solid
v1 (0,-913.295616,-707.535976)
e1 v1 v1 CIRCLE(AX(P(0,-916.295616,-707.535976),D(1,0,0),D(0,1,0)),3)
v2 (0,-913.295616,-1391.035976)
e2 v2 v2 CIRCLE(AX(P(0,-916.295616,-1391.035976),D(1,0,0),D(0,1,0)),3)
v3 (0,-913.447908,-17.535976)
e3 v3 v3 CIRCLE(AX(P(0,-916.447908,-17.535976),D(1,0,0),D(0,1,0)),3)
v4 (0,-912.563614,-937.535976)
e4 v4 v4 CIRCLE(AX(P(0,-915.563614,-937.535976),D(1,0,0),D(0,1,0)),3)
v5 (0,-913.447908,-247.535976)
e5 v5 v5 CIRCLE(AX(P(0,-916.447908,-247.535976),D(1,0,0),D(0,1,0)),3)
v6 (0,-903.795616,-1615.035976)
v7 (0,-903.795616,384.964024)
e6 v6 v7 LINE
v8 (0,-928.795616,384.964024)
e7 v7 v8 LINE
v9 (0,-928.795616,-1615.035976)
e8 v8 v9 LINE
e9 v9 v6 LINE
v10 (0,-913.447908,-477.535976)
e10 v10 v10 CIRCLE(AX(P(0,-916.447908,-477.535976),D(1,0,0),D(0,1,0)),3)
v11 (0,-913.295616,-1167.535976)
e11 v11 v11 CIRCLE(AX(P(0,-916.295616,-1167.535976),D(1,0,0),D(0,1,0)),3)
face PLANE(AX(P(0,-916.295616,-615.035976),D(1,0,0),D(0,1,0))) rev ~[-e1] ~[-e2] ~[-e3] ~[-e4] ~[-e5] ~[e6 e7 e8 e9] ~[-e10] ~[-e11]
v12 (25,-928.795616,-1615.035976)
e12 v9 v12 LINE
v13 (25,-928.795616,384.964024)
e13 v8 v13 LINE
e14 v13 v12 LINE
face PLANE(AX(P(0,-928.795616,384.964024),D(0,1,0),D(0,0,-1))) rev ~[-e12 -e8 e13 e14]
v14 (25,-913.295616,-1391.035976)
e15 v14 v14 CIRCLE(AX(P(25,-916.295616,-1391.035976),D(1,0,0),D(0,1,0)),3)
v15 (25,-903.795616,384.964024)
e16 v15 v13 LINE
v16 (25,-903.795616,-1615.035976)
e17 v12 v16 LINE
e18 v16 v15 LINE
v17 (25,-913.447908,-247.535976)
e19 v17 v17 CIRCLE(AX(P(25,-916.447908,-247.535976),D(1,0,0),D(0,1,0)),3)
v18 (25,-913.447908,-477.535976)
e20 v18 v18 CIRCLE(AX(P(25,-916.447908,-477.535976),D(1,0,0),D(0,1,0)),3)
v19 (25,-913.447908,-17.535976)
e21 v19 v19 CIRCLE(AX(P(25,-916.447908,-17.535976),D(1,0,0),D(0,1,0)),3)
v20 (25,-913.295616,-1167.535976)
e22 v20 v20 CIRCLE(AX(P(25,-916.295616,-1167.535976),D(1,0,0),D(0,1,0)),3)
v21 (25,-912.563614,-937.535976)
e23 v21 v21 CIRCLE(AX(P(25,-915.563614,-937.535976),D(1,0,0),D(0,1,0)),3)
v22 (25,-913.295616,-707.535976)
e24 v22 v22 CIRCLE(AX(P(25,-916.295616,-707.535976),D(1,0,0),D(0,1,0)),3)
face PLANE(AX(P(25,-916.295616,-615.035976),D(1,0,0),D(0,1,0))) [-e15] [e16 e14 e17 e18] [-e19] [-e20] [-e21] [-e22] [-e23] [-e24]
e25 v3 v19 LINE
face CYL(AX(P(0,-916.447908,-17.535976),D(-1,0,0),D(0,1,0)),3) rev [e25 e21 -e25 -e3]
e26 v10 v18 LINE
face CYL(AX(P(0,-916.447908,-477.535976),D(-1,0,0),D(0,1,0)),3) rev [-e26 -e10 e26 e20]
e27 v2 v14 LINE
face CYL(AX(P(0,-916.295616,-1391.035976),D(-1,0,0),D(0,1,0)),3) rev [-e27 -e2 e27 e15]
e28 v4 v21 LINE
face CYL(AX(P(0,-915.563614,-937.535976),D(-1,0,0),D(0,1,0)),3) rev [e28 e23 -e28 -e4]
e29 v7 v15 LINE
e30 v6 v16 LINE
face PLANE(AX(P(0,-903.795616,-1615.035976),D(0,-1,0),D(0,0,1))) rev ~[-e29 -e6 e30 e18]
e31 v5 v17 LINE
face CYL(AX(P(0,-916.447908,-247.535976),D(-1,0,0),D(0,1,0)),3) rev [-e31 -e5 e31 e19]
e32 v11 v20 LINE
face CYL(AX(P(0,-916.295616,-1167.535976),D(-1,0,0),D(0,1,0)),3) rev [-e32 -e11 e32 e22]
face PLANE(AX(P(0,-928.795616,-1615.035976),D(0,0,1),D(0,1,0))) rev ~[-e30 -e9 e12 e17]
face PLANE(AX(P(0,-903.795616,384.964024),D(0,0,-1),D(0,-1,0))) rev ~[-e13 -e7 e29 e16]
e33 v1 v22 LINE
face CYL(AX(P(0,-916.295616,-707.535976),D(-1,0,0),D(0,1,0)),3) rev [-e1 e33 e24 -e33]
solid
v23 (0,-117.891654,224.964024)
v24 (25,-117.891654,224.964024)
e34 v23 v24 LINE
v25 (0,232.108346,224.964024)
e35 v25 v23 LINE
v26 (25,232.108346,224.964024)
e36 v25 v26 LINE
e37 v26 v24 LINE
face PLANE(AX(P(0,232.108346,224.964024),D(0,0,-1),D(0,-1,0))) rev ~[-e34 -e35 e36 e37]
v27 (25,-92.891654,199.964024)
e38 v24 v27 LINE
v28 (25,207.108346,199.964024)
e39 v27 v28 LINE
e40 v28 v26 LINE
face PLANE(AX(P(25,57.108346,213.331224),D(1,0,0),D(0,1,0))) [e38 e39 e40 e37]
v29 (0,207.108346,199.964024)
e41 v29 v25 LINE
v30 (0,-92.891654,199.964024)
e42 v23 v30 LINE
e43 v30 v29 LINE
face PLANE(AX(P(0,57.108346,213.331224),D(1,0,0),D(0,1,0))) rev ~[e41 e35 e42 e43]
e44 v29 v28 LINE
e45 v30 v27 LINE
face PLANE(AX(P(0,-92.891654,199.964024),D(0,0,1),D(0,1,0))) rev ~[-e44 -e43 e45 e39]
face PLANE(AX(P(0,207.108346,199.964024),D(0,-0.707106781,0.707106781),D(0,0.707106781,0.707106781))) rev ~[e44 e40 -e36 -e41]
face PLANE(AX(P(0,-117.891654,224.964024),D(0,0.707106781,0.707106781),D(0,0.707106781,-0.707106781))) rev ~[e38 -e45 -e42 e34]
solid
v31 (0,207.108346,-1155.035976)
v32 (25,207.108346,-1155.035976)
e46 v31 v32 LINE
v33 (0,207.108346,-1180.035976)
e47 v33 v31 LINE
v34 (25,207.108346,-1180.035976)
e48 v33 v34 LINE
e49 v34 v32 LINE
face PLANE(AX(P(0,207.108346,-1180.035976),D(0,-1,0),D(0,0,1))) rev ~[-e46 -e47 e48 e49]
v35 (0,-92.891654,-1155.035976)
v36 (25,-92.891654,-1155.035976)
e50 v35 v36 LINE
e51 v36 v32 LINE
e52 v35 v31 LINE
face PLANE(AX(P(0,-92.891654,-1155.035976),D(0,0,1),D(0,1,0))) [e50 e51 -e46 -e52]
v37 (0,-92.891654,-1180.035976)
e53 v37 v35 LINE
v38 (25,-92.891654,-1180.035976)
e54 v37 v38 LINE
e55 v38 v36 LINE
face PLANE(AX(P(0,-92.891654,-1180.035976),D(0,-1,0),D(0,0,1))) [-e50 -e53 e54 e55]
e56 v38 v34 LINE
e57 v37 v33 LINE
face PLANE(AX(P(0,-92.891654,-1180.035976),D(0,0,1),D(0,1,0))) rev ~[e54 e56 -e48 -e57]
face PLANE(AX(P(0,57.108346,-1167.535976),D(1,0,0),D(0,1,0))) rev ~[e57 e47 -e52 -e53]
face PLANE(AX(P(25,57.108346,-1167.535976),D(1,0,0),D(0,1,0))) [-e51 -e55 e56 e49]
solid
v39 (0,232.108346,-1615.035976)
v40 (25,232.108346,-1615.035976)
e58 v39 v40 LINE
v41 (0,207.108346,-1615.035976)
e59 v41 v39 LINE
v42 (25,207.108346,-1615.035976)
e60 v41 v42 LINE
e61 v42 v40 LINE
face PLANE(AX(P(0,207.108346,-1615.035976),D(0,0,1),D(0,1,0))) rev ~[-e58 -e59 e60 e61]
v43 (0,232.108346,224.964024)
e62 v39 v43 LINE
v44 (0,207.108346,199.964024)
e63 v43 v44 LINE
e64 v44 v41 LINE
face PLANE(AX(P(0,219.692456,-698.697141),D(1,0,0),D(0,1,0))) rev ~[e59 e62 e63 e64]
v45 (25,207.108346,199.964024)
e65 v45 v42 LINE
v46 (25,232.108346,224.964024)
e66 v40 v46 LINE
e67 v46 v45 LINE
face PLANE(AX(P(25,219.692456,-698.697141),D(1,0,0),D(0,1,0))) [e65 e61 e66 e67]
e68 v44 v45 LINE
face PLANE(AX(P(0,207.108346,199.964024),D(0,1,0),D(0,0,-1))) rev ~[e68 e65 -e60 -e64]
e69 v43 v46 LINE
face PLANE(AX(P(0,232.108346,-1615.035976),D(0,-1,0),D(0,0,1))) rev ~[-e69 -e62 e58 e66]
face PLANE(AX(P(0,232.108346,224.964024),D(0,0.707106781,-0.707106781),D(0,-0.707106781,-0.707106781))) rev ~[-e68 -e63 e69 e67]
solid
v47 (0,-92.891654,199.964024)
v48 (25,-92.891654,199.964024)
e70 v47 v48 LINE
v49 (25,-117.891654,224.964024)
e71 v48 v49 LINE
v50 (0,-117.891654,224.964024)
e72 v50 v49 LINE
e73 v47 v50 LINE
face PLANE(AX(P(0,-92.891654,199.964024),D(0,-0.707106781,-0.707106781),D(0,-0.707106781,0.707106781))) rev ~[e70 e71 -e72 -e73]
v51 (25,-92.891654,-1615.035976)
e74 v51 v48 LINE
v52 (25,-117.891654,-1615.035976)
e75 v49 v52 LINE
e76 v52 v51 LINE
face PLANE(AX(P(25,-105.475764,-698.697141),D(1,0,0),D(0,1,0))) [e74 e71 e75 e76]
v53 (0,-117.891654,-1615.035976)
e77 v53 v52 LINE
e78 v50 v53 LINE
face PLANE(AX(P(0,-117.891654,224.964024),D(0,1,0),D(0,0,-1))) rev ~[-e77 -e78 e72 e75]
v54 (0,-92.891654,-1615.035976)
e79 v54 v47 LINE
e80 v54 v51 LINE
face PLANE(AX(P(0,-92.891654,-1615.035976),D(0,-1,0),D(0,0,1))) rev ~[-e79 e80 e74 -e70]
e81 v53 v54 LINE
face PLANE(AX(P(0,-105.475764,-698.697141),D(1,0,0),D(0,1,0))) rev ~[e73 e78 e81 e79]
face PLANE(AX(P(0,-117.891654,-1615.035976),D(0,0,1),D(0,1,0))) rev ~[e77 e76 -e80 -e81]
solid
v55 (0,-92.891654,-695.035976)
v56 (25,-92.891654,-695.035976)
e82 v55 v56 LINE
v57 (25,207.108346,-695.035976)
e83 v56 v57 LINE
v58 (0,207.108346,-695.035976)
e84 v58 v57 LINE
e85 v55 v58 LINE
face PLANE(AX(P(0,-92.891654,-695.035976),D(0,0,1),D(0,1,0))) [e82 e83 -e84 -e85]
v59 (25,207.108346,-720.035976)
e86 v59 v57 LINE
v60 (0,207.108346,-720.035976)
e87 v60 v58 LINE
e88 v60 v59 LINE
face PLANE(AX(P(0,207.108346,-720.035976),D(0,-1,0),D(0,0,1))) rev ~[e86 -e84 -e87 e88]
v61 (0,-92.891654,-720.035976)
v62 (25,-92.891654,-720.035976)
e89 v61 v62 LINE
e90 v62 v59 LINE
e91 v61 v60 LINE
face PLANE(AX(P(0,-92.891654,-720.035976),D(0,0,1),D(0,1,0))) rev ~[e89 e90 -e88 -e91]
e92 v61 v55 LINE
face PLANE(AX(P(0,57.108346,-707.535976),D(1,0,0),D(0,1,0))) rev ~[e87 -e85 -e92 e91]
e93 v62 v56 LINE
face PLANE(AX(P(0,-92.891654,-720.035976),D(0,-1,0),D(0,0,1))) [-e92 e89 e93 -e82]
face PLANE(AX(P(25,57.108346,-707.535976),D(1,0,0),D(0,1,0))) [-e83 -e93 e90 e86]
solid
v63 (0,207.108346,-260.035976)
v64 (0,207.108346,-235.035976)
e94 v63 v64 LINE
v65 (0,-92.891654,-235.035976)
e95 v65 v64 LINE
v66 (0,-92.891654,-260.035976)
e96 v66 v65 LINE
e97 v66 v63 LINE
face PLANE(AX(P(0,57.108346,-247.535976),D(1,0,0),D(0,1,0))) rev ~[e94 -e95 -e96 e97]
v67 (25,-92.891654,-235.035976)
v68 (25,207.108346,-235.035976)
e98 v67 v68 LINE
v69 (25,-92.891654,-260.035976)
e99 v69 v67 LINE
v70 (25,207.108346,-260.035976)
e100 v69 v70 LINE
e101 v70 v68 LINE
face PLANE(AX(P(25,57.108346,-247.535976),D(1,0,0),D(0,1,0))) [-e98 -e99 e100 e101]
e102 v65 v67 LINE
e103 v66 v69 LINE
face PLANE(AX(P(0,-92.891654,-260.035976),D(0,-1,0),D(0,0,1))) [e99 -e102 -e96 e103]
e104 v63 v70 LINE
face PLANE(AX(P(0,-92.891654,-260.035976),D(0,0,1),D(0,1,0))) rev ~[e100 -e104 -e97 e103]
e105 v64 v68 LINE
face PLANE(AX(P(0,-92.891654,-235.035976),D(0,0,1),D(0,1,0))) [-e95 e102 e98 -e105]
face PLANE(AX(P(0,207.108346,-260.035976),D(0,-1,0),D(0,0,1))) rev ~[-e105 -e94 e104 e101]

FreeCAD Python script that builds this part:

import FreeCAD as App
import Part
import Sketcher

V = App.Vector


def add_polygon(sketch, points):
    """Adds a closed chain of lines whose ends are joined by coincident constraints."""
    first, n = sketch.GeometryCount, len(points)
    for a, b in zip(points, points[1:] + points[:1]):
        sketch.addGeometry(Part.LineSegment(App.Vector(*a, 0), App.Vector(*b, 0)), False)
    for i in range(n):
        sketch.addConstraint(Sketcher.Constraint("Coincident", first + i, 2, first + (i + 1) % n, 1))

doc = App.newDocument("Part")
body = doc.addObject("PartDesign::Body", "Body")
body.AllowCompound = True

sketch1 = body.newObject("Sketcher::SketchObject", "Sketch")
sketch1.AttachmentSupport = (doc.getObject("YZ_Plane"), [""])
sketch1.MapMode = "FlatFace"
add_polygon(sketch1, [(-117.9, 225), (-117.9, -1615), (-92.9, -1615), (-92.9, 200)])
add_polygon(sketch1, [(232.1, -1615), (232.1, 225), (207.1, 200), (207.1, -1615)])
add_polygon(sketch1, [(-903.8, -1615), (-903.8, 385), (-928.8, 385), (-928.8, -1615)])
sketch1.addGeometry(Part.Circle(V(-916.3, -1391, 0), V(0, 0, 1), 3), False)
sketch1.addGeometry(Part.Circle(V(-916.3, -1167.5, 0), V(0, 0, 1), 3), False)
sketch1.addGeometry(Part.Circle(V(-916.3, -707.5, 0), V(0, 0, 1), 3), False)
sketch1.addGeometry(Part.Circle(V(-915.6, -937.5, 0), V(0, 0, 1), 3), False)
sketch1.addGeometry(Part.Circle(V(-916.4, -477.5, 0), V(0, 0, 1), 3), False)
sketch1.addGeometry(Part.Circle(V(-916.4, -247.5, 0), V(0, 0, 1), 3), False)
sketch1.addGeometry(Part.Circle(V(-916.4, -17.5, 0), V(0, 0, 1), 3), False)
sketch1.addConstraint([
    Sketcher.Constraint("Vertical", 0),
    Sketcher.Constraint("Horizontal", 1),
    Sketcher.Constraint("Vertical", 2),
    Sketcher.Constraint("Vertical", 4),
    Sketcher.Constraint("Vertical", 6),
    Sketcher.Constraint("Horizontal", 7),
    Sketcher.Constraint("Vertical", 8),
    Sketcher.Constraint("Horizontal", 9),
    Sketcher.Constraint("Vertical", 10),
    Sketcher.Constraint("Horizontal", 11),
    Sketcher.Constraint("Equal", 12, 13),
    Sketcher.Constraint("Equal", 13, 14),
    Sketcher.Constraint("Equal", 14, 15),
    Sketcher.Constraint("Equal", 15, 16),
    Sketcher.Constraint("Equal", 16, 17),
    Sketcher.Constraint("Equal", 17, 18),
    Sketcher.Constraint("Perpendicular", 3, 5),
    Sketcher.Constraint("Horizontal", 3, 2, 4, 2),
    Sketcher.Constraint("Horizontal", 2, 2, 5, 2),
    Sketcher.Constraint("Horizontal", 1, 2, 6, 2),
    Sketcher.Constraint("Horizontal", 7, 2, 10, 2),
    Sketcher.Constraint("Vertical", 12, 3, 13, 3),
    Sketcher.Constraint("Vertical", 13, 3, 14, 3),
    Sketcher.Constraint("Vertical", 16, 3, 17, 3),
    Sketcher.Constraint("Vertical", 17, 3, 18, 3),
    Sketcher.Constraint("Equal", 1, 7),
    Sketcher.Constraint("Equal", 7, 9),
    Sketcher.Constraint("Diameter", 12, 6.0),
    Sketcher.Constraint("DistanceX", 1, 1, 1, 2, 25.0),
    Sketcher.Constraint("DistanceY", 0, 2, 0, 1, 1840.0),
    Sketcher.Constraint("DistanceY", 8, 1, 8, 2, 2000.0),
    Sketcher.Constraint("DistanceY", 13, 3, 14, 3, 460.0),
    Sketcher.Constraint("DistanceY", 13, 3, 15, 3, 230.0),
    Sketcher.Constraint("DistanceY", 14, 3, 16, 3, 230.0),
    Sketcher.Constraint("DistanceY", 16, 3, 17, 3, 230.0),
    Sketcher.Constraint("DistanceY", 17, 3, 18, 3, 230.0),
    Sketcher.Constraint("DistanceY", 0, 2, 12, 3, 224.0),
    Sketcher.Constraint("DistanceX", 2, 2, 4, 2, 325.0),
    Sketcher.Constraint("DistanceY", 12, 3, 13, 3, 223.5),
    Sketcher.Constraint("DistanceX", 10, 2, 12, 3, 12.5),
    Sketcher.Constraint("DistanceX", 13, 3, 15, 3, 0.732002),
    Sketcher.Constraint("DistanceX", 16, 3, -1, 1, 916.447908),
    Sketcher.Constraint("DistanceX", 16, 3, 14, 3, 0.152292),
    Sketcher.Constraint("DistanceX", 12, 3, 0, 2, 798.403962),
    Sketcher.Constraint("DistanceY", 12, 3, -1, 1, 1391.035976),
])
pad1 = body.newObject("PartDesign::Pad", "Pad")
pad1.Profile = sketch1
pad1.Length = 25
body2 = doc.addObject("PartDesign::Body", "Body001")
body2.AllowCompound = True

sketch2 = body2.newObject("Sketcher::SketchObject", "Sketch001")
sketch2.AttachmentSupport = (doc.getObject("YZ_Plane001"), [""])
sketch2.MapMode = "FlatFace"
add_polygon(sketch2, [(232, 225), (-118, 225), (-93, 200), (207, 200)])
add_polygon(sketch2, [(-93, -235), (-93, -260), (207, -260), (207, -235)])
add_polygon(sketch2, [(-93, -695), (-93, -720), (207, -720), (207, -695)])
add_polygon(sketch2, [(-93, -1155), (-93, -1180), (207, -1180), (207, -1155)])
sketch2.addConstraint([
    Sketcher.Constraint("Horizontal", 0),
    Sketcher.Constraint("Horizontal", 2),
    Sketcher.Constraint("Vertical", 4),
    Sketcher.Constraint("Horizontal", 5),
    Sketcher.Constraint("Vertical", 6),
    Sketcher.Constraint("Horizontal", 7),
    Sketcher.Constraint("Vertical", 8),
    Sketcher.Constraint("Horizontal", 9),
    Sketcher.Constraint("Vertical", 10),
    Sketcher.Constraint("Horizontal", 11),
    Sketcher.Constraint("Vertical", 12),
    Sketcher.Constraint("Horizontal", 13),
    Sketcher.Constraint("Vertical", 14),
    Sketcher.Constraint("Horizontal", 15),
    Sketcher.Constraint("Perpendicular", 1, 3),
    Sketcher.Constraint("Vertical", 1, 2, 4, 2),
    Sketcher.Constraint("Vertical", 2, 2, 5, 2),
    Sketcher.Constraint("Vertical", 7, 2, 8, 2),
    Sketcher.Constraint("Vertical", 6, 2, 9, 2),
    Sketcher.Constraint("Vertical", 11, 2, 12, 2),
    Sketcher.Constraint("Vertical", 10, 2, 13, 2),
    Sketcher.Constraint("Equal", 6, 8),
    Sketcher.Constraint("Equal", 10, 12),
    Sketcher.Constraint("Equal", 1, 3),
    Sketcher.Constraint("DistanceX", 0, 2, 0, 1, 350.0),
    Sketcher.Constraint("DistanceX", 2, 1, 2, 2, 300.0),
    Sketcher.Constraint("DistanceY", 4, 2, 4, 1, 25.0),
    Sketcher.Constraint("DistanceY", 4, 2, 1, 2, 460.0),
    Sketcher.Constraint("DistanceY", 8, 2, 4, 2, 460.0),
    Sketcher.Constraint("DistanceY", 12, 2, 8, 2, 460.0),
    Sketcher.Constraint("DistanceX", 0, 2, -1, 1, 117.891654),
    Sketcher.Constraint("DistanceY", -1, 1, 0, 2, 224.964024),
])
pad2 = body2.newObject("PartDesign::Pad", "Pad001")
pad2.Profile = sketch2
pad2.Length = 25

doc.recompute()
